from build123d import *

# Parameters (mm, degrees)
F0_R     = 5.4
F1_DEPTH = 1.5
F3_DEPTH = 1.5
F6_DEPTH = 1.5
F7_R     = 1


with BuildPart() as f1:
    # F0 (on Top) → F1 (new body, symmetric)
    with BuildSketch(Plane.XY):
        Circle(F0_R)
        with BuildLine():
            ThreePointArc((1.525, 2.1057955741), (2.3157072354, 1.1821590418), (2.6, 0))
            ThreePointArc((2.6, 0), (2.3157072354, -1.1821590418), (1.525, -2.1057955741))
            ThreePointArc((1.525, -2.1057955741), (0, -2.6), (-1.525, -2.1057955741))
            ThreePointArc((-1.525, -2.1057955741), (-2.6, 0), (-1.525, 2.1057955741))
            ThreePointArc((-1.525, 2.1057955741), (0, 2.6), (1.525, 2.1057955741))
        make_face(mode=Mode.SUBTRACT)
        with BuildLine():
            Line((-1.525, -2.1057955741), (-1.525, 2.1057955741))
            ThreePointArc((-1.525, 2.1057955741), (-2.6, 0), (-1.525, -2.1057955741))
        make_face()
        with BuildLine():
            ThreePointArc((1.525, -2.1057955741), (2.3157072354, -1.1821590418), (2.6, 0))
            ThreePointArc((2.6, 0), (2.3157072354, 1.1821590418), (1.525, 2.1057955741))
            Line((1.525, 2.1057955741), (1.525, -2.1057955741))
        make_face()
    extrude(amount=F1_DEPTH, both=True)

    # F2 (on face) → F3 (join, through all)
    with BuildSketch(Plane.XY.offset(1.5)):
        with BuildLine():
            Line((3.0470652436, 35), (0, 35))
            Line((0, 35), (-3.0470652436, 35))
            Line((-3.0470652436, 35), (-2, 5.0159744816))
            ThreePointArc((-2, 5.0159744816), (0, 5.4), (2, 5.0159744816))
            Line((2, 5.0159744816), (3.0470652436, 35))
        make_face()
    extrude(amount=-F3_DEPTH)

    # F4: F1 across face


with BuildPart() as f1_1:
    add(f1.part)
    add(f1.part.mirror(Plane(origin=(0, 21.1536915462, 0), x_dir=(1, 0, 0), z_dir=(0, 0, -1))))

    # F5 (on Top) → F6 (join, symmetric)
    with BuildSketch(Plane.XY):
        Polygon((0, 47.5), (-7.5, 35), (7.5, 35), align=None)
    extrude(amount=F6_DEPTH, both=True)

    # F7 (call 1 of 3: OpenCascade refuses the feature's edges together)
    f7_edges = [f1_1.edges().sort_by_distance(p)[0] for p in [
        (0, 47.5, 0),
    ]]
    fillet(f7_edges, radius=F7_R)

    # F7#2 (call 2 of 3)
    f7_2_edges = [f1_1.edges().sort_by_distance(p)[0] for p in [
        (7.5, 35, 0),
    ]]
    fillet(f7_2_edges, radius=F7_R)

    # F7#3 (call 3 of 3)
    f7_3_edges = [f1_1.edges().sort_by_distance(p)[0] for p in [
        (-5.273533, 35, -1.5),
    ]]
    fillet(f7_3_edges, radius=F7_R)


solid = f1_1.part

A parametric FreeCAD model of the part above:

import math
import FreeCAD as App
import Part
import Sketcher
from FreeCAD import Vector
Q = App.Units.Quantity


def edges_at(feature, points):
    """Names of the edges that pass closest to the given points."""
    edges = feature.Shape.Edges
    near = lambda p: min(range(len(edges)), key=lambda i: edges[i].distToShape(Part.Vertex(*p))[0])
    return sorted({f"Edge{near(p) + 1}" for p in points})

doc = App.newDocument("Part")
body = doc.addObject("PartDesign::Body", "Body")

# Sketch on XY plane
sketch1 = body.newObject("Sketcher::SketchObject", "Sketch")
sketch1.AttachmentSupport = (doc.getObject("XY_Plane"), [""])
sketch1.MapMode = "FlatFace"
sketch1.addGeometry([
    Part.Circle(Vector(0, 0, 0), Vector(0, 0, 1), 5.4),  # 0
    Part.ArcOfCircle(Part.Circle(Vector(0, 0, 0), Vector(0, 0, 1), 2.6), math.radians(54), math.radians(126)),  # 1
    Part.LineSegment(Vector(1.5, 2.1, 0), Vector(1.5, -2.1, 0)),  # 2
    Part.ArcOfCircle(Part.Circle(Vector(0, 0, 0), Vector(0, 0, 1), 2.6), math.radians(-126), math.radians(-54)),  # 3
    Part.LineSegment(Vector(-1.5, -2.1, 0), Vector(-1.5, 2.1, 0)),  # 4
], False)
sketch1.addConstraint([
    Sketcher.Constraint("Coincident", 1, 1, 2, 1),
    Sketcher.Constraint("Coincident", 2, 2, 3, 2),
    Sketcher.Constraint("Coincident", 3, 1, 4, 1),
    Sketcher.Constraint("Coincident", 4, 2, 1, 2),
    Sketcher.Constraint("Vertical", 2),
    Sketcher.Constraint("Vertical", 4),
    Sketcher.Constraint("Coincident", 0, 3, -1, 1),
    Sketcher.Constraint("Coincident", 1, 3, -1, 1),
    Sketcher.Constraint("Coincident", 3, 3, -1, 1),
    Sketcher.Constraint("Equal", 1, 3),
    Sketcher.Constraint("Horizontal", 2, 2, 3, 1),
    Sketcher.Constraint("Diameter", 0, 10.8),
    Sketcher.Constraint("Radius", 1, 2.6),
    Sketcher.Constraint("DistanceX", 3, 1, 2, 2, 3.05),
])
pad1 = body.newObject("PartDesign::Pad", "Pad")
pad1.Profile = sketch1
pad1.Length = 3
pad1.Midplane = True

# Sketch on XY plane
sketch2 = body.newObject("Sketcher::SketchObject", "Sketch001")
sketch2.AttachmentSupport = (doc.getObject("XY_Plane"), [""])
sketch2.MapMode = "FlatFace"
sketch2.AttachmentOffset = App.Placement(Vector(0, 0, 1.5), App.Rotation())
sketch2.addGeometry([
    Part.LineSegment(Vector(3, 35, 0), Vector(-3, 35, 0)),
    Part.LineSegment(Vector(-3, 35, 0), Vector(-2, 5, 0)),
    Part.ArcOfCircle(Part.Circle(Vector(0, 0, 0), Vector(0, 0, 1), 5.4), math.radians(68), math.radians(112)),
    Part.LineSegment(Vector(2, 5, 0), Vector(3, 35, 0)),
], False)
sketch2.addConstraint([
    Sketcher.Constraint("Coincident", 0, 2, 1, 1),
    Sketcher.Constraint("Coincident", 1, 2, 2, 2),
    Sketcher.Constraint("Coincident", 2, 1, 3, 1),
    Sketcher.Constraint("Coincident", 3, 2, 0, 1),
    Sketcher.Constraint("Horizontal", 0),
    Sketcher.Constraint("Coincident", 2, 3, -1, 1),
    Sketcher.Constraint("Horizontal", 1, 2, 2, 1),
    Sketcher.Constraint("Equal", 1, 3),
    Sketcher.Constraint("Radius", 2, 5.4),
    Sketcher.Constraint("Angle", 1, Q("-88 deg")),
    Sketcher.Constraint("DistanceY", -1, 1, 0, 2, 35.0),
    Sketcher.Constraint("DistanceX", 1, 2, -1, 1, 2.0),
])
pad2 = body.newObject("PartDesign::Pad", "Pad001")
pad2.Profile = sketch2
pad2.Length = 1.5
pad2.Reversed = True
body2 = doc.addObject("PartDesign::Body", "Body001")
doc.recompute()

body2.BaseFeature = body
doc.recompute()

mirroring = doc.addObject("Part::Mirroring", "Mirroring")
mirroring.Source = body
mirroring.Base = Vector(0, 21.153692, 0)
mirroring.Normal = Vector(0, 0, -1)
body3 = doc.addObject("PartDesign::Body", "Body002")
body3.BaseFeature = mirroring
boolean = body2.newObject("PartDesign::Boolean", "Boolean")
boolean.Type = "Fuse"
boolean.addObjects([body3])
doc.recompute()

# Sketch on XY plane
sketch3 = body2.newObject("Sketcher::SketchObject", "Sketch002")
sketch3.AttachmentSupport = (doc.getObject("XY_Plane001"), [""])
sketch3.MapMode = "FlatFace"
sketch3.addGeometry([
    Part.LineSegment(Vector(0, 48, 0), Vector(-8, 35, 0)),
    Part.LineSegment(Vector(-8, 35, 0), Vector(8, 35, 0)),
    Part.LineSegment(Vector(8, 35, 0), Vector(0, 48, 0)),
], False)
sketch3.addConstraint([
    Sketcher.Constraint("Coincident", 0, 2, 1, 1),
    Sketcher.Constraint("Coincident", 1, 2, 2, 1),
    Sketcher.Constraint("Coincident", 2, 2, 0, 1),
    Sketcher.Constraint("Horizontal", 1),
    Sketcher.Constraint("PointOnObject", 2, 2, -2),
    Sketcher.Constraint("Equal", 0, 2),
    Sketcher.Constraint("DistanceX", 1, 1, 1, 2, 15.0),
    Sketcher.Constraint("DistanceY", -1, 1, 0, 2, 35.0),
    Sketcher.Constraint("DistanceY", -1, 1, 2, 2, 47.5),
])
pad3 = body2.newObject("PartDesign::Pad", "Pad002")
pad3.Profile = sketch3
pad3.Length = 3
pad3.Midplane = True
doc.recompute()

fillet = body2.newObject("PartDesign::Fillet", "Fillet")
fillet.Base = (pad3, edges_at(pad3, [(0, 47.5, 0)]))
fillet.Radius = 1
doc.recompute()

fillet2 = body2.newObject("PartDesign::Fillet", "Fillet001")
fillet2.Base = (fillet, edges_at(fillet, [(7.5, 35, 0)]))
fillet2.Radius = 1
doc.recompute()

fillet3 = body2.newObject("PartDesign::Fillet", "Fillet002")
fillet3.Base = (fillet2, edges_at(fillet2, [(-5.274, 35, -1.5)]))
fillet3.Radius = 1
mirroring.Visibility = False

doc.recompute()
